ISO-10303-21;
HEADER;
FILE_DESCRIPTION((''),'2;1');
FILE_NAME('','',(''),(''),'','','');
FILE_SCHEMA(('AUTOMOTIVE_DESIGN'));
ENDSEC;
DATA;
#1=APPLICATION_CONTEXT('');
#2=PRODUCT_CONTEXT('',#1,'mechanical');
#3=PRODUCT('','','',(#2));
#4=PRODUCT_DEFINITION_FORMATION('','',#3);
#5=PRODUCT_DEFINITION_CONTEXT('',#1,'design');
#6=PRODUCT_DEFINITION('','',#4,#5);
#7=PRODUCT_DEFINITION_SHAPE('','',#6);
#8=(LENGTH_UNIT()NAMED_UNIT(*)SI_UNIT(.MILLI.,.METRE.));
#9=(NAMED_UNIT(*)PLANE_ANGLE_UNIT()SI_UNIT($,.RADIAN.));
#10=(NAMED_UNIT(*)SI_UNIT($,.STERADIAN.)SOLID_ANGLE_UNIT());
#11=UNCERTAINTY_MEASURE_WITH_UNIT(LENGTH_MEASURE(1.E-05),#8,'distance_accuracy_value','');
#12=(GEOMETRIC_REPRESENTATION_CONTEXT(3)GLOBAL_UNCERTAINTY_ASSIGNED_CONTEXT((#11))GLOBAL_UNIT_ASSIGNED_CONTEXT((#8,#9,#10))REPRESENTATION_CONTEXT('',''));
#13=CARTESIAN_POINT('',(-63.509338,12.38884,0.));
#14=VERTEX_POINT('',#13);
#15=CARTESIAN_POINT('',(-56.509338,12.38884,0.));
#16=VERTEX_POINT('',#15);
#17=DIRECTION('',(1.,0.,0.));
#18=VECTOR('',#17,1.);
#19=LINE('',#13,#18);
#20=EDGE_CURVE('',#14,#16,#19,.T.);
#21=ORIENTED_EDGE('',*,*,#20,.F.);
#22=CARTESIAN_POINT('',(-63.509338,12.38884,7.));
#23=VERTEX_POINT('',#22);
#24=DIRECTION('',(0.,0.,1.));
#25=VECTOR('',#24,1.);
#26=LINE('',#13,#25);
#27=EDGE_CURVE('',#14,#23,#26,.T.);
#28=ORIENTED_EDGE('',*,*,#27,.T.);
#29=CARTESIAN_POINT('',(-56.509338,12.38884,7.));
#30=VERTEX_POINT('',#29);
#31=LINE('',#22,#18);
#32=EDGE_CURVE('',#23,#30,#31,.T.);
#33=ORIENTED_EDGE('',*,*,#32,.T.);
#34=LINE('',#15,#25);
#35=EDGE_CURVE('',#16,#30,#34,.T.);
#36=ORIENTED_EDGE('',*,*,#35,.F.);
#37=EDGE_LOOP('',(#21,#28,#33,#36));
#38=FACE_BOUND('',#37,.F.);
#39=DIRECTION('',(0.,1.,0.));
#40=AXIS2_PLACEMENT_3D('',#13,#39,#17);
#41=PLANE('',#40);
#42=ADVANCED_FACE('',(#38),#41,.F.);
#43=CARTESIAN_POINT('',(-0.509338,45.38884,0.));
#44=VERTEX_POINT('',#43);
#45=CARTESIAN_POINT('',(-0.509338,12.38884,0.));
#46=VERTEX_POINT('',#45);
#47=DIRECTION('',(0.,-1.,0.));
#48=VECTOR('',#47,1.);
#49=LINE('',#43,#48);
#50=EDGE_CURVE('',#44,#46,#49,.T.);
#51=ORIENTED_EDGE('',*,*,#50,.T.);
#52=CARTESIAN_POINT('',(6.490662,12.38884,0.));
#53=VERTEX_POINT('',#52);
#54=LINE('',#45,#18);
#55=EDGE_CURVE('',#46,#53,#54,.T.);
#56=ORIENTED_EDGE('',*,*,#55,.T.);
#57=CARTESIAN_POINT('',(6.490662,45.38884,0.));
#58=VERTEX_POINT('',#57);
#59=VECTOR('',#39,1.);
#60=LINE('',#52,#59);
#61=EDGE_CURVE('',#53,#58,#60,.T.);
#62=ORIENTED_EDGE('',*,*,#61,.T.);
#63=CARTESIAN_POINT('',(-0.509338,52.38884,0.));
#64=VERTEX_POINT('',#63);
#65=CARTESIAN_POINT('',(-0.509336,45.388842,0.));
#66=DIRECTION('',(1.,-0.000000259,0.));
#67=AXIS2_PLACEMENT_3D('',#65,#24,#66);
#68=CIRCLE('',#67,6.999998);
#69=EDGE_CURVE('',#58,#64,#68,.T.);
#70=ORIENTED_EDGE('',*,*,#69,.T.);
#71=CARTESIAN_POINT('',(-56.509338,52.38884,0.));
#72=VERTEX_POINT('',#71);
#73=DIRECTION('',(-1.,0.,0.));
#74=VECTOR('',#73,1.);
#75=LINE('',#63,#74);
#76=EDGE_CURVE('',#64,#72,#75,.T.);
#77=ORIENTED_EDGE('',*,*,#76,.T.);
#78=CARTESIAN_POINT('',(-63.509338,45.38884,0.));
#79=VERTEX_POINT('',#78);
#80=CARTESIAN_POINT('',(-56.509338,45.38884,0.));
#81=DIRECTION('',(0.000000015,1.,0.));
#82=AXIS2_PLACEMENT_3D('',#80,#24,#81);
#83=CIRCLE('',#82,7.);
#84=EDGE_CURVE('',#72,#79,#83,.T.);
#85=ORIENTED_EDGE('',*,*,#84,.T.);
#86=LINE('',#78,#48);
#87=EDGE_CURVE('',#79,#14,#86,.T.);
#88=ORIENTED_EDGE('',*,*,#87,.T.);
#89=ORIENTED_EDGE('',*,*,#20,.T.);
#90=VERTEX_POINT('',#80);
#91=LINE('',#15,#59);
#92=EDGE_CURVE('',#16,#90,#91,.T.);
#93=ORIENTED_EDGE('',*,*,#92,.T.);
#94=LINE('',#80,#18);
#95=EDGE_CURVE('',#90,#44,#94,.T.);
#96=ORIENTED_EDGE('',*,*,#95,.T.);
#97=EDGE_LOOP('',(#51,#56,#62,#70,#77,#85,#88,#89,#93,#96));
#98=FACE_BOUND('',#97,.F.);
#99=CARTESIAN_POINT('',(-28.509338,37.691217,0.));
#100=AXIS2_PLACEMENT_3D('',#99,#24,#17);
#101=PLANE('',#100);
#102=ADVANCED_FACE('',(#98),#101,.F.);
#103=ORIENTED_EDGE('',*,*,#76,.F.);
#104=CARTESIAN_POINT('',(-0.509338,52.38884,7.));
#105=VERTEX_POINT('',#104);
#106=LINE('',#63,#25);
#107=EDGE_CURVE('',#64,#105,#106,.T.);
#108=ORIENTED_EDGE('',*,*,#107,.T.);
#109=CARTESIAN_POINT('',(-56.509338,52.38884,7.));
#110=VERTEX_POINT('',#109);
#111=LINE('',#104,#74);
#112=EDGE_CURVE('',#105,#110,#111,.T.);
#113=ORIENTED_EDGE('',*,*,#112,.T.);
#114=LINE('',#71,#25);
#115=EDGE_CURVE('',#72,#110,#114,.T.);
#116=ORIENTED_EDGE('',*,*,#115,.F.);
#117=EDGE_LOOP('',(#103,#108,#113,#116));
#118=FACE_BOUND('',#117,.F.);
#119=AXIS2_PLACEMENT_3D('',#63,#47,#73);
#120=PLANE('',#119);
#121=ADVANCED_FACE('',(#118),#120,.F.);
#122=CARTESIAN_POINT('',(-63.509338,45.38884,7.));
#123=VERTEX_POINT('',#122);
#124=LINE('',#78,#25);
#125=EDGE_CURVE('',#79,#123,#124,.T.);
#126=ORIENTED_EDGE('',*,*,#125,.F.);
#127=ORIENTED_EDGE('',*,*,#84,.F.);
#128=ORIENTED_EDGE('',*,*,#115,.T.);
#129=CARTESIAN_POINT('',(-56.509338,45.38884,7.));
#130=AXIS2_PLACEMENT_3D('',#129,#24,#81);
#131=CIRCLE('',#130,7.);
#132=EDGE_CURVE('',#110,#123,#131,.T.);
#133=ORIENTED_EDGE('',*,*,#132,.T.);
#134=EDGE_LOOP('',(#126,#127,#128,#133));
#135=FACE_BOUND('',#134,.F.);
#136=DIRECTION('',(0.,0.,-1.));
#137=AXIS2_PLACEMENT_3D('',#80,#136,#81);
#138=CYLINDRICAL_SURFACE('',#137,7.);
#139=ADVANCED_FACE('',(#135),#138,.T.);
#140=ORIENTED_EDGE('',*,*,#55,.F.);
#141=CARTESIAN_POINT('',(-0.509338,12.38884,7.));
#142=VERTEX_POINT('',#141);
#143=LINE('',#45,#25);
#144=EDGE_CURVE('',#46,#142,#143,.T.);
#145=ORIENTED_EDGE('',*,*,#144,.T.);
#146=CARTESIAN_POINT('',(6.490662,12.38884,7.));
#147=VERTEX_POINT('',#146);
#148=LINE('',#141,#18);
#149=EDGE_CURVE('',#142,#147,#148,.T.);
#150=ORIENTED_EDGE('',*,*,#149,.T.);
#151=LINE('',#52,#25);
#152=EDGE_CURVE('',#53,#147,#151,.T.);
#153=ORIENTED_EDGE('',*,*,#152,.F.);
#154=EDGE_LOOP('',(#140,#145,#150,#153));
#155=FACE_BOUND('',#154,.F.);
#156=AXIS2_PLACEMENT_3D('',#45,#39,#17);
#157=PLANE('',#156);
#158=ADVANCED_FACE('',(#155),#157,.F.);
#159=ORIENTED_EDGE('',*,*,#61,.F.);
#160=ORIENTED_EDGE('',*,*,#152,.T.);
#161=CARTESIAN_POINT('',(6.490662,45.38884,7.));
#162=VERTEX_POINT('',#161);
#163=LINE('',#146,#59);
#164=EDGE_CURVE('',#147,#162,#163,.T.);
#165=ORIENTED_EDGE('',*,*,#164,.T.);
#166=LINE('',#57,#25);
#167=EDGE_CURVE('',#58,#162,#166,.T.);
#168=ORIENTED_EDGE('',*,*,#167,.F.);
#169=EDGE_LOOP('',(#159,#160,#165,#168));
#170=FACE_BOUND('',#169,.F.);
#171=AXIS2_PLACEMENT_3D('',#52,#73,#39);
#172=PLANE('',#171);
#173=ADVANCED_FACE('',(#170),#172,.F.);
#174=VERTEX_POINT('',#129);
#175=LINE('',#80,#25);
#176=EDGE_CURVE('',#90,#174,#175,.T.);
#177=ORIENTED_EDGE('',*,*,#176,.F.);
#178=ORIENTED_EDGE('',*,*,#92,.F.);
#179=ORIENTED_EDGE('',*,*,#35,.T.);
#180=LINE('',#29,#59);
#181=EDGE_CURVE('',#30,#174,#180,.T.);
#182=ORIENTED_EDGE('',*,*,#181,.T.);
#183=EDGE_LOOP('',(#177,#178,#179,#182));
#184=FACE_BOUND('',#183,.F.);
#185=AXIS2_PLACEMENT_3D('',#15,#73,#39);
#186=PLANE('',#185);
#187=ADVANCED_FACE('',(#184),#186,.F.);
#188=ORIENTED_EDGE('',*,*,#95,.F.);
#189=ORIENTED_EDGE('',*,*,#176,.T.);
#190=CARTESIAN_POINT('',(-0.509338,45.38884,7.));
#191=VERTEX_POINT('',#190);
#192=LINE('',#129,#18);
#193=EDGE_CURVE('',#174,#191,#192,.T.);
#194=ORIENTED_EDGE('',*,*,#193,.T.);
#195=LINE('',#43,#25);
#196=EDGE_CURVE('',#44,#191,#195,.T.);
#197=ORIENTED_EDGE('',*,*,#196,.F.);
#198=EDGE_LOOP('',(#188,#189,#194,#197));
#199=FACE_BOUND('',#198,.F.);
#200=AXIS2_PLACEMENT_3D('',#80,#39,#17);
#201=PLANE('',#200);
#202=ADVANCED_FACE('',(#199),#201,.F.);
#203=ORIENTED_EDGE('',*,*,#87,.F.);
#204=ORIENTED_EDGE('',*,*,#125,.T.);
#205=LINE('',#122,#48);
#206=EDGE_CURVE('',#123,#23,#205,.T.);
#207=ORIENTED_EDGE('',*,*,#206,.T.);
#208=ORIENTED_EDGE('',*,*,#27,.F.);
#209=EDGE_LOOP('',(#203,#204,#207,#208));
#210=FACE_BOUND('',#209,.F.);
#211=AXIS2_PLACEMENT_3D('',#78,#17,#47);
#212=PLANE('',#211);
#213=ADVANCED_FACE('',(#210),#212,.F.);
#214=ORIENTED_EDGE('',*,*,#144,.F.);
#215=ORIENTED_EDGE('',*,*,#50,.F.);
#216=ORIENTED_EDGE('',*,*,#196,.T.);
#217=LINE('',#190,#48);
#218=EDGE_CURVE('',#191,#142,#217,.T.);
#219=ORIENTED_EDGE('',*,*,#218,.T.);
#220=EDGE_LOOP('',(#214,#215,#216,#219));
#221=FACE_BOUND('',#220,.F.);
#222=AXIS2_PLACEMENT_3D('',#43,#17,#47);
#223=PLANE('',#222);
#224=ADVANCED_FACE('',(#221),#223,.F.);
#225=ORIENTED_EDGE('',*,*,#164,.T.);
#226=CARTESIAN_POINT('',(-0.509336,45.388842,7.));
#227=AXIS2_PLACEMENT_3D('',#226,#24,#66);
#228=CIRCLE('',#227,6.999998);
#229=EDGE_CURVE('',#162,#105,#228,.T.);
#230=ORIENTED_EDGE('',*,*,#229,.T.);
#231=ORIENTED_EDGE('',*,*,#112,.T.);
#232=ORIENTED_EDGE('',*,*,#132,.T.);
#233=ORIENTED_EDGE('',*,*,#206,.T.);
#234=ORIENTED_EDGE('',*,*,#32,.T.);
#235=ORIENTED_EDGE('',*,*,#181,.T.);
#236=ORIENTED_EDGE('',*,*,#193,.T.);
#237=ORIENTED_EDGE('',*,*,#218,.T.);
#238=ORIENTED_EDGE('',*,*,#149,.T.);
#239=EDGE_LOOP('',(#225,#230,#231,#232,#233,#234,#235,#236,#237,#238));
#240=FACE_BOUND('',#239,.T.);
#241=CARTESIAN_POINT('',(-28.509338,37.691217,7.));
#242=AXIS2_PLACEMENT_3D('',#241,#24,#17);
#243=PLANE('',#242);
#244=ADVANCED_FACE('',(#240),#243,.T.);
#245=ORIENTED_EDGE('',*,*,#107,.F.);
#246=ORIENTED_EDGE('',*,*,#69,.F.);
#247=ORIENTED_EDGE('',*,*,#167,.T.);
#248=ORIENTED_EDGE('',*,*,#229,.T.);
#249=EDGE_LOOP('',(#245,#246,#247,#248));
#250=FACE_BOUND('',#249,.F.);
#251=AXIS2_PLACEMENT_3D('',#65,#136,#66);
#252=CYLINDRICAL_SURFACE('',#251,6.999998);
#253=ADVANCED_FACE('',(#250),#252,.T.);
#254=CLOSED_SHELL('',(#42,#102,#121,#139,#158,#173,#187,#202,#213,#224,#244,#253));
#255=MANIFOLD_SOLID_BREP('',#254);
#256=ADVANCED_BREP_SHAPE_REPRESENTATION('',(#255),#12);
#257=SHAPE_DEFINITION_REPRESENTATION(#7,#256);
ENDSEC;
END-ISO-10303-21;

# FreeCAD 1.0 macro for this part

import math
import FreeCAD as App
import Part
import Sketcher
from FreeCAD import Vector
Q = App.Units.Quantity

doc = App.newDocument("Part")
params = doc.addObject("Spreadsheet::Sheet", "Params")
for row, (alias, value) in enumerate([
    ("sketch1_radius", "6.999998 mm"),
    ("sketch1_width", "56 mm"),
    ("sketch1_height", "33 mm"),
    ("pad1_length", "7 mm"),
], start=1):
    params.set(f"A{row}", alias)
    params.set(f"B{row}", "=" + value)
    params.setAlias(f"B{row}", alias)

body = doc.addObject("PartDesign::Body", "Body")

# Sketch on XY plane
sketch1 = body.newObject("Sketcher::SketchObject", "Sketch")
sketch1.AttachmentSupport = (doc.getObject("XY_Plane"), [""])
sketch1.MapMode = "FlatFace"
sketch1.addGeometry([
    Part.LineSegment(Vector(-64, 45, 0), Vector(-64, 12, 0)),  # 0
    Part.LineSegment(Vector(-64, 12, 0), Vector(-57, 12, 0)),  # 1
    Part.LineSegment(Vector(-57, 12, 0), Vector(-57, 45, 0)),  # 2
    Part.LineSegment(Vector(-57, 45, 0), Vector(-1, 45, 0)),  # 3
    Part.LineSegment(Vector(-1, 45, 0), Vector(-1, 12, 0)),  # 4
    Part.LineSegment(Vector(-1, 12, 0), Vector(6, 12, 0)),  # 5
    Part.LineSegment(Vector(6, 12, 0), Vector(6, 45, 0)),  # 6
    Part.ArcOfCircle(Part.Circle(Vector(-1, 45, 0), Vector(0, 0, 1), 7), math.radians(0), math.radians(90)),  # 7
    Part.LineSegment(Vector(-1, 52, 0), Vector(-57, 52, 0)),  # 8
    Part.ArcOfCircle(Part.Circle(Vector(-57, 45, 0), Vector(0, 0, 1), 7), math.radians(90), math.radians(180)),  # 9
], False)
sketch1.addConstraint([
    Sketcher.Constraint("Coincident", 0, 2, 1, 1),
    Sketcher.Constraint("Coincident", 1, 2, 2, 1),
    Sketcher.Constraint("Coincident", 2, 2, 3, 1),
    Sketcher.Constraint("Coincident", 3, 2, 4, 1),
    Sketcher.Constraint("Coincident", 4, 2, 5, 1),
    Sketcher.Constraint("Coincident", 5, 2, 6, 1),
    Sketcher.Constraint("Tangent", 6, 2, 7, 1),
    Sketcher.Constraint("Tangent", 7, 2, 8, 1),
    Sketcher.Constraint("Tangent", 8, 2, 9, 1),
    Sketcher.Constraint("Tangent", 9, 2, 0, 1),
    Sketcher.Constraint("Vertical", 0),
    Sketcher.Constraint("Horizontal", 1),
    Sketcher.Constraint("Vertical", 2),
    Sketcher.Constraint("Horizontal", 3),
    Sketcher.Constraint("Vertical", 4),
    Sketcher.Constraint("Horizontal", 5),
    Sketcher.Constraint("Vertical", 6),
    Sketcher.Constraint("Horizontal", 8),
    Sketcher.Constraint("Coincident", 2, 2, 9, 3),
    Sketcher.Constraint("Coincident", 3, 2, 7, 3),
    Sketcher.Constraint("Horizontal", 1, 2, 4, 2),
    Sketcher.Constraint("Radius", 7, Q("6.999998 mm")),
    Sketcher.Constraint("DistanceX", 3, 1, 3, 2, Q("56 mm")),
    Sketcher.Constraint("DistanceY", 0, 2, 0, 1, Q("33 mm")),
    Sketcher.Constraint("DistanceY", -1, 1, 7, 3, Q("45.388842 mm")),
    Sketcher.Constraint("DistanceX", 9, 3, -1, 1, Q("56.509338 mm")),
])
sketch1.setExpression("Constraints[21]", "Params.sketch1_radius")
sketch1.setExpression("Constraints[22]", "Params.sketch1_width")
sketch1.setExpression("Constraints[23]", "Params.sketch1_height")
pad1 = body.newObject("PartDesign::Pad", "Pad")
pad1.Profile = sketch1
pad1.setExpression("Length", "Params.pad1_length")

doc.recompute()
